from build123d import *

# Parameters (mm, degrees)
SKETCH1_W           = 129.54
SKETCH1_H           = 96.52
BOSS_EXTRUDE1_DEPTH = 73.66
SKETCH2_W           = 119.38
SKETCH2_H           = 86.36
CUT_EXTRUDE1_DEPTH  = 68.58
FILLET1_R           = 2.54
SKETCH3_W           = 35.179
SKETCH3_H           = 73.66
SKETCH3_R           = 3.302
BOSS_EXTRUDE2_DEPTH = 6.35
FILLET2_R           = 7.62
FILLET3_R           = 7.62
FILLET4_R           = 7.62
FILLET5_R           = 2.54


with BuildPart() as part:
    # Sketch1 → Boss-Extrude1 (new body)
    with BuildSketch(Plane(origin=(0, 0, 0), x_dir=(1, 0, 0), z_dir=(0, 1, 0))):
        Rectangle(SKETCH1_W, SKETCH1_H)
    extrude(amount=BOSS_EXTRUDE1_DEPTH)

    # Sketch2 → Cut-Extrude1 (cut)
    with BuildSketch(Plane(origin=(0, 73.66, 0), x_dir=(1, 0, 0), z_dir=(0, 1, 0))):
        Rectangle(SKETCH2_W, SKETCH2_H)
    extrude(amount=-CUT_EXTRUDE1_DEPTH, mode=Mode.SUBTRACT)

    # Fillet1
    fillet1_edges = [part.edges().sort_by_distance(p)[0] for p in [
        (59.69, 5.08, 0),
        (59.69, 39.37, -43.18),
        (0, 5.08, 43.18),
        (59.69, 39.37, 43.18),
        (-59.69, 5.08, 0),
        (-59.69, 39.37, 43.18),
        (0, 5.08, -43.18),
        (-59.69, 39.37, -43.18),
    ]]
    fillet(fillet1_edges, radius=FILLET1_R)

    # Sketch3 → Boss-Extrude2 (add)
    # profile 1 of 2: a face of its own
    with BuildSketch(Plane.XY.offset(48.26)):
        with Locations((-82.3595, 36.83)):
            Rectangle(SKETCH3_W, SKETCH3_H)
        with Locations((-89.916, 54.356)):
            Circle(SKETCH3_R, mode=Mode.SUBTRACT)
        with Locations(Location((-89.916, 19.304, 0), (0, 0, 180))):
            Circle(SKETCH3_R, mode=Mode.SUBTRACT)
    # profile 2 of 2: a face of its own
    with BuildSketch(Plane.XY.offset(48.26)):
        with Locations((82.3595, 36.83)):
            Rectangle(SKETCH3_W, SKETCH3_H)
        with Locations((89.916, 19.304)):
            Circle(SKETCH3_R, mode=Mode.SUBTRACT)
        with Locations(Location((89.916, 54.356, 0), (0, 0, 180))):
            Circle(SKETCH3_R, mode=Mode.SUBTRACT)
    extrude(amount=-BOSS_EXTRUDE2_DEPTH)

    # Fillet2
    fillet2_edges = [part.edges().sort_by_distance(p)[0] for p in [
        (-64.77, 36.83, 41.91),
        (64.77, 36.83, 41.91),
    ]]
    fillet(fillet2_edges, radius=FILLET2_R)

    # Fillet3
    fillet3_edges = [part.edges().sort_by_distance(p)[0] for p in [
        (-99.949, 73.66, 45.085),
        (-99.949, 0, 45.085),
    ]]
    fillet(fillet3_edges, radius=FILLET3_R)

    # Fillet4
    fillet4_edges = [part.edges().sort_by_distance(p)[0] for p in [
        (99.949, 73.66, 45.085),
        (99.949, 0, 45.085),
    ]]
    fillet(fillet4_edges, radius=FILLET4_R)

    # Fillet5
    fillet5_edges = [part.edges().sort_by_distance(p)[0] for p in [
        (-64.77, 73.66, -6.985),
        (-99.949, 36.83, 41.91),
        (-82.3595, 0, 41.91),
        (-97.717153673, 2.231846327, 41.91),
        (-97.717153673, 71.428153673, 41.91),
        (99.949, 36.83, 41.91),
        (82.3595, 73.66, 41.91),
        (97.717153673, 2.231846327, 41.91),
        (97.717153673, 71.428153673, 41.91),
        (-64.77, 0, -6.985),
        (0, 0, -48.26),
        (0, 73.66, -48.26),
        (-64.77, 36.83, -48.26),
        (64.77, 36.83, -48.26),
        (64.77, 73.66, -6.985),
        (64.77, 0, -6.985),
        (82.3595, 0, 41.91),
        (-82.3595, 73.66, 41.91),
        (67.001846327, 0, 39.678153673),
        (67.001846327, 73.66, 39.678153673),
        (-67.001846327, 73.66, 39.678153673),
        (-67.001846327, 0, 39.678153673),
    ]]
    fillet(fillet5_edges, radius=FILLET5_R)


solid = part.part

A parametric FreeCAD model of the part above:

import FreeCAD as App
import Part
import Sketcher
Q = App.Units.Quantity


def edges_at(feature, points):
    """Names of the edges that pass closest to the given points."""
    edges = feature.Shape.Edges
    near = lambda p: min(range(len(edges)), key=lambda i: edges[i].distToShape(Part.Vertex(*p))[0])
    return sorted({f"Edge{near(p) + 1}" for p in points})

doc = App.newDocument("Part")
body = doc.addObject("PartDesign::Body", "Body")

sketch1 = body.newObject("Sketcher::SketchObject", "Sketch")
sketch1.AttachmentSupport = (doc.getObject("XZ_Plane"), [""])
sketch1.MapMode = "FlatFace"
sketch1.addGeometry([
    Part.LineSegment(App.Vector(-65, -48, 0), App.Vector(-65, 48, 0)),
    Part.LineSegment(App.Vector(-65, 48, 0), App.Vector(65, 48, 0)),
    Part.LineSegment(App.Vector(65, 48, 0), App.Vector(65, -48, 0)),
    Part.LineSegment(App.Vector(65, -48, 0), App.Vector(-65, -48, 0)),
], False)
sketch1.addConstraint([
    Sketcher.Constraint("Coincident", 0, 2, 1, 1),
    Sketcher.Constraint("Coincident", 1, 2, 2, 1),
    Sketcher.Constraint("Coincident", 2, 2, 3, 1),
    Sketcher.Constraint("Coincident", 3, 2, 0, 1),
    Sketcher.Constraint("Vertical", 0),
    Sketcher.Constraint("Horizontal", 1),
    Sketcher.Constraint("Vertical", 2),
    Sketcher.Constraint("Horizontal", 3),
    Sketcher.Constraint("Symmetric", 0, 2, 2, 2, -1, 1),
    Sketcher.Constraint("DistanceX", 1, 1, 1, 2, Q("5.1 in")),
    Sketcher.Constraint("DistanceY", 0, 1, 0, 2, Q("3.8 in")),
])
pad1 = body.newObject("PartDesign::Pad", "Pad")
pad1.Profile = sketch1
pad1.Length = Q("2.9 in")
pad1.Reversed = True

sketch2 = body.newObject("Sketcher::SketchObject", "Sketch001")
sketch2.AttachmentSupport = (doc.getObject("XZ_Plane"), [""])
sketch2.MapMode = "FlatFace"
sketch2.AttachmentOffset = App.Placement(App.Vector(0, 0, -2.9 * 25.4), App.Rotation())
sketch2.addGeometry([
    Part.LineSegment(App.Vector(-60, -43, 0), App.Vector(-60, 43, 0)),
    Part.LineSegment(App.Vector(-60, 43, 0), App.Vector(60, 43, 0)),
    Part.LineSegment(App.Vector(60, 43, 0), App.Vector(60, -43, 0)),
    Part.LineSegment(App.Vector(60, -43, 0), App.Vector(-60, -43, 0)),
], False)
sketch2.addConstraint([
    Sketcher.Constraint("Coincident", 0, 2, 1, 1),
    Sketcher.Constraint("Coincident", 1, 2, 2, 1),
    Sketcher.Constraint("Coincident", 2, 2, 3, 1),
    Sketcher.Constraint("Coincident", 3, 2, 0, 1),
    Sketcher.Constraint("Vertical", 0),
    Sketcher.Constraint("Horizontal", 1),
    Sketcher.Constraint("Vertical", 2),
    Sketcher.Constraint("Horizontal", 3),
    Sketcher.Constraint("Symmetric", 0, 2, 2, 2, -1, 1),
    Sketcher.Constraint("DistanceX", 1, 1, 1, 2, Q("4.7 in")),
    Sketcher.Constraint("DistanceY", 0, 1, 0, 2, Q("3.4 in")),
])
pocket1 = body.newObject("PartDesign::Pocket", "Pocket")
pocket1.Profile = sketch2
pocket1.Length = Q("2.7 in")
pocket1.Reversed = True
doc.recompute()

fillet = body.newObject("PartDesign::Fillet", "Fillet")
fillet.Base = (pocket1, edges_at(pocket1, [
    (59.69, 5.08, 0),
    (59.69, 39.37, -43.18),
    (0, 5.08, 43.18),
    (59.69, 39.37, 43.18),
    (-59.69, 5.08, 0),
    (-59.69, 39.37, 43.18),
    (0, 5.08, -43.18),
    (-59.69, 39.37, -43.18),
]))
fillet.Radius = Q("0.1 in")

sketch3 = body.newObject("Sketcher::SketchObject", "Sketch002")
sketch3.AttachmentSupport = (doc.getObject("XY_Plane"), [""])
sketch3.MapMode = "FlatFace"
sketch3.AttachmentOffset = App.Placement(App.Vector(0, 0, 1.9 * 25.4), App.Rotation())
sketch3.addGeometry([
    Part.LineSegment(App.Vector(-99.9, 73.7, 0), App.Vector(-99.9, 0, 0)),
    Part.LineSegment(App.Vector(-99.9, 0, 0), App.Vector(-64.8, 0, 0)),
    Part.LineSegment(App.Vector(-64.8, 0, 0), App.Vector(-64.8, 73.7, 0)),
    Part.LineSegment(App.Vector(-64.8, 73.7, 0), App.Vector(-99.9, 73.7, 0)),
    Part.Circle(App.Vector(-89.9, 19.3, 0), App.Vector(0, 0, 1), 3.3),
    Part.Circle(App.Vector(-89.9, 54.4, 0), App.Vector(0, 0, 1), 3.3),
    Part.LineSegment(App.Vector(64.8, 73.7, 0), App.Vector(64.8, 0, 0)),
    Part.LineSegment(App.Vector(64.8, 0, 0), App.Vector(99.9, 0, 0)),
    Part.LineSegment(App.Vector(99.9, 0, 0), App.Vector(99.9, 73.7, 0)),
    Part.LineSegment(App.Vector(99.9, 73.7, 0), App.Vector(64.8, 73.7, 0)),
    Part.Circle(App.Vector(89.9, 19.3, 0), App.Vector(0, 0, 1), 3.3),
    Part.Circle(App.Vector(89.9, 54.4, 0), App.Vector(0, 0, 1), 3.3),
], False)
sketch3.addConstraint([
    Sketcher.Constraint("Coincident", 0, 2, 1, 1),
    Sketcher.Constraint("Coincident", 1, 2, 2, 1),
    Sketcher.Constraint("Coincident", 2, 2, 3, 1),
    Sketcher.Constraint("Coincident", 3, 2, 0, 1),
    Sketcher.Constraint("Coincident", 6, 2, 7, 1),
    Sketcher.Constraint("Coincident", 7, 2, 8, 1),
    Sketcher.Constraint("Coincident", 8, 2, 9, 1),
    Sketcher.Constraint("Coincident", 9, 2, 6, 1),
    Sketcher.Constraint("Vertical", 0),
    Sketcher.Constraint("Horizontal", 1),
    Sketcher.Constraint("Vertical", 2),
    Sketcher.Constraint("Horizontal", 3),
    Sketcher.Constraint("Vertical", 6),
    Sketcher.Constraint("Horizontal", 7),
    Sketcher.Constraint("Vertical", 8),
    Sketcher.Constraint("Horizontal", 9),
    Sketcher.Constraint("Equal", 4, 5),
    Sketcher.Constraint("Equal", 5, 10),
    Sketcher.Constraint("Equal", 10, 11),
    Sketcher.Constraint("Symmetric", 1, 2, 6, 2, -1, 1),
    Sketcher.Constraint("Symmetric", 4, 3, 10, 3, -2),
    Sketcher.Constraint("Symmetric", 5, 3, 11, 3, -2),
    Sketcher.Constraint("Symmetric", 0, 2, 7, 2, -2),
    Sketcher.Constraint("Horizontal", 3, 2, 8, 2),
    Sketcher.Constraint("Vertical", 4, 3, 5, 3),
    Sketcher.Constraint("Diameter", 4, Q("0.26 in")),
    Sketcher.Constraint("DistanceY", 0, 2, 0, 1, Q("2.9 in")),
    Sketcher.Constraint("DistanceX", 1, 2, 6, 2, Q("5.1 in")),
    Sketcher.Constraint("DistanceX", 1, 1, 1, 2, Q("1.385 in")),
    Sketcher.Constraint("DistanceX", 4, 3, -1, 1, Q("3.54 in")),
    Sketcher.Constraint("DistanceY", -1, 1, 4, 3, Q("0.76 in")),
    Sketcher.Constraint("DistanceY", -1, 1, 5, 3, Q("2.14 in")),
])
pad2 = body.newObject("PartDesign::Pad", "Pad001")
pad2.Profile = sketch3
pad2.Length = Q("0.25 in")
pad2.Reversed = True
doc.recompute()

fillet2 = body.newObject("PartDesign::Fillet", "Fillet001")
fillet2.Base = (pad2, edges_at(pad2, [(-64.77, 36.83, 41.91), (64.77, 36.83, 41.91)]))
fillet2.Radius = Q("0.3 in")
doc.recompute()

fillet3 = body.newObject("PartDesign::Fillet", "Fillet002")
fillet3.Base = (fillet2, edges_at(fillet2, [(-99.949, 73.66, 45.085), (-99.949, 0, 45.085)]))
fillet3.Radius = Q("0.3 in")
doc.recompute()

fillet4 = body.newObject("PartDesign::Fillet", "Fillet003")
fillet4.Base = (fillet3, edges_at(fillet3, [(99.949, 73.66, 45.085), (99.949, 0, 45.085)]))
fillet4.Radius = Q("0.3 in")
doc.recompute()

fillet5 = body.newObject("PartDesign::Fillet", "Fillet004")
fillet5.Base = (fillet4, edges_at(fillet4, [
    (-64.77, 73.66, -6.985),
    (-99.949, 36.83, 41.91),
    (-82.359, 0, 41.91),
    (-97.717, 2.232, 41.91),
    (-97.717, 71.428, 41.91),
    (99.949, 36.83, 41.91),
    (82.359, 73.66, 41.91),
    (97.717, 2.232, 41.91),
    (97.717, 71.428, 41.91),
    (-64.77, 0, -6.985),
    (0, 0, -48.26),
    (0, 73.66, -48.26),
    (-64.77, 36.83, -48.26),
    (64.77, 36.83, -48.26),
    (64.77, 73.66, -6.985),
    (64.77, 0, -6.985),
    (82.359, 0, 41.91),
    (-82.359, 73.66, 41.91),
    (67.002, 0, 39.678),
    (67.002, 73.66, 39.678),
    (-67.002, 73.66, 39.678),
    (-67.002, 0, 39.678),
]))
fillet5.Radius = Q("0.1 in")

doc.recompute()
